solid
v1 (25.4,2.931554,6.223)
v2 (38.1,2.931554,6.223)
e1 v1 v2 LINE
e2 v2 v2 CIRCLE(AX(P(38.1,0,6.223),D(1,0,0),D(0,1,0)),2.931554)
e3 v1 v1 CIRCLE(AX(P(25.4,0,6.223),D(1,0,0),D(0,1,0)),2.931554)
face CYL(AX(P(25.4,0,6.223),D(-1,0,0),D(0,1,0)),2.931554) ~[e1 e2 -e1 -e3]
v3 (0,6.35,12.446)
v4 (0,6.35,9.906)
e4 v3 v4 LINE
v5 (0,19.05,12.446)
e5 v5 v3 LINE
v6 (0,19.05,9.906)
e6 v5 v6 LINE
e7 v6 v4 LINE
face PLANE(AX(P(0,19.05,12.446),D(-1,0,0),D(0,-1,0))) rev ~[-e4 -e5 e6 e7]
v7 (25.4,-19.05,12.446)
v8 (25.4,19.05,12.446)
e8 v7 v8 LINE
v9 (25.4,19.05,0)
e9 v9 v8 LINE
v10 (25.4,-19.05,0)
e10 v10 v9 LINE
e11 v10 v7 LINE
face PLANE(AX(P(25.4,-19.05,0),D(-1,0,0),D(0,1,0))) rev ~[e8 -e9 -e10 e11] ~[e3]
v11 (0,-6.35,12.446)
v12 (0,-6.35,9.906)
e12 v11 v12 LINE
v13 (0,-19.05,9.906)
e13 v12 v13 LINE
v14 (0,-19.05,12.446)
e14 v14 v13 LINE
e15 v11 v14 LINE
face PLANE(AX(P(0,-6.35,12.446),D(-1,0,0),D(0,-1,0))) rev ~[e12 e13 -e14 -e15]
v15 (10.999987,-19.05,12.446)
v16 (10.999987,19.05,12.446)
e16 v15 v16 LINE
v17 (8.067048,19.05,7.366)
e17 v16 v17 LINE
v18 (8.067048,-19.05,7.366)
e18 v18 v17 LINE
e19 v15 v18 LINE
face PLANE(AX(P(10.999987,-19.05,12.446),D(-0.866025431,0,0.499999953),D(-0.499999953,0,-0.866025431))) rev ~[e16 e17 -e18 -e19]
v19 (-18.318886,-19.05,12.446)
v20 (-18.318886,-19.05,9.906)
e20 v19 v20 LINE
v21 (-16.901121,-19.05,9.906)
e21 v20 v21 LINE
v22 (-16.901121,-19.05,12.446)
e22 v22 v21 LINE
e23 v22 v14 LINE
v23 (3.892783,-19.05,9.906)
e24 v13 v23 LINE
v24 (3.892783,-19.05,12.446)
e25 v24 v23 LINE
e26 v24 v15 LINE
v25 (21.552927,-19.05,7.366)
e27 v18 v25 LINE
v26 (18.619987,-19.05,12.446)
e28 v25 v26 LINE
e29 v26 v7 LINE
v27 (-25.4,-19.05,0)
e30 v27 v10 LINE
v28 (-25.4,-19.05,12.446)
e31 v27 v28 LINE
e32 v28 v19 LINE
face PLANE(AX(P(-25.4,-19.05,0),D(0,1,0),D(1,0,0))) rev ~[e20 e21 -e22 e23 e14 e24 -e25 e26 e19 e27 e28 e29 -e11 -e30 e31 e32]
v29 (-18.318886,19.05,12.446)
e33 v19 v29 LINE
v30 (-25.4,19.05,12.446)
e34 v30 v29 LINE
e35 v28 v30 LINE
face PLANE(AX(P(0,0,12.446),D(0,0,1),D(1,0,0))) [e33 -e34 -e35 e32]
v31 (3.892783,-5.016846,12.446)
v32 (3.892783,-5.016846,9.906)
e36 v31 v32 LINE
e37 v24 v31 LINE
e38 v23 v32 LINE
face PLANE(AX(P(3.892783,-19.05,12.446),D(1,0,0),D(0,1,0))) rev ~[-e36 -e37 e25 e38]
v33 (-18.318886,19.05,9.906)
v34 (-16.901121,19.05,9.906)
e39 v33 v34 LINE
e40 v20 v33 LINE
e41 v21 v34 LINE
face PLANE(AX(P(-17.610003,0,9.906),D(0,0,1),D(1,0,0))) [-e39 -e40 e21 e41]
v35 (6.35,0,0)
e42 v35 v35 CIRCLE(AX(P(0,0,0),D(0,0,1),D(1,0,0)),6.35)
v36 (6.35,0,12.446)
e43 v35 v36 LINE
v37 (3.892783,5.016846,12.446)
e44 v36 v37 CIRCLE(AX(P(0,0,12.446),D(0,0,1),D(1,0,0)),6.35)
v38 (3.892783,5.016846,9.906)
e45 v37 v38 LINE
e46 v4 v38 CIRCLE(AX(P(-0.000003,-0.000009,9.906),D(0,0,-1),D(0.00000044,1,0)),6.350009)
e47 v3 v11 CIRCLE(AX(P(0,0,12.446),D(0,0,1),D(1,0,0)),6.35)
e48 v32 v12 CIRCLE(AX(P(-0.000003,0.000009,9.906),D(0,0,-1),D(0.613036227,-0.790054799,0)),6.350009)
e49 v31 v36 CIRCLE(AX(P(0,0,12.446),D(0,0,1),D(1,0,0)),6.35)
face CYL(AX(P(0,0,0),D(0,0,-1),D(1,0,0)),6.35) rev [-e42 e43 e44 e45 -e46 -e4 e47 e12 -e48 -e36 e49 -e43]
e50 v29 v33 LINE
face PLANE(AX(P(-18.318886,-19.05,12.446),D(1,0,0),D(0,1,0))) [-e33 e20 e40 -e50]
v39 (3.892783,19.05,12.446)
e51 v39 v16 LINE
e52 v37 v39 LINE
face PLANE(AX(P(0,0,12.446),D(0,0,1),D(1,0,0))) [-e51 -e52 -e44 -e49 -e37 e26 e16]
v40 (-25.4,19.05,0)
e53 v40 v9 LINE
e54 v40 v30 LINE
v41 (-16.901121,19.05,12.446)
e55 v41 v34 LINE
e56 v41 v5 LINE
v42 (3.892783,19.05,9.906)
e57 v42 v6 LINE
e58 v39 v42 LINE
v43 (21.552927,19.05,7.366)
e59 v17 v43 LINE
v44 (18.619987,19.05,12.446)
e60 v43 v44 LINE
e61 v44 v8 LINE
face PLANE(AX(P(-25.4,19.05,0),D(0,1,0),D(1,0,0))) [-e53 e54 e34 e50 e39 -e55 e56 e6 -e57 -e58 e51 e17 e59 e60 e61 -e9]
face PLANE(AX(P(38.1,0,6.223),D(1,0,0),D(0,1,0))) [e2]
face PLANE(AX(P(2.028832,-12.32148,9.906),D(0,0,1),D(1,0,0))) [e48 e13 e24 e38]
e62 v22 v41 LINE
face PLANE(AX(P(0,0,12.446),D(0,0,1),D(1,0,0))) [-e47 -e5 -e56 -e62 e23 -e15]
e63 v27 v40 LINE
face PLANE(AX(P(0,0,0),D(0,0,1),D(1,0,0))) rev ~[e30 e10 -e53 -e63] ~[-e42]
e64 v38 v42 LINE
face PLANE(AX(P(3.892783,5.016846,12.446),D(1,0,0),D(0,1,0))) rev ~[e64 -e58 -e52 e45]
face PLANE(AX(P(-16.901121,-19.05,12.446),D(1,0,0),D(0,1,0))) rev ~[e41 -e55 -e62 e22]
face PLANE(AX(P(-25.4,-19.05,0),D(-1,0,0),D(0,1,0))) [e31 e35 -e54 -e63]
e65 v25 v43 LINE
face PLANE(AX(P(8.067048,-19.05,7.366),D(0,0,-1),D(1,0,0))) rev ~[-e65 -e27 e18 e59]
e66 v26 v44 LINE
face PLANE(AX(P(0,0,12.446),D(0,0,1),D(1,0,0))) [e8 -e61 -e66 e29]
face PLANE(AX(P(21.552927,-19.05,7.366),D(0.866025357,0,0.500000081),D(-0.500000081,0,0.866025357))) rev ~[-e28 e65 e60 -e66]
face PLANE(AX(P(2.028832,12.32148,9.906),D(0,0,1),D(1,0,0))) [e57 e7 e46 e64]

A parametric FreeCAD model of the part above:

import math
import FreeCAD as App
import Part
import Sketcher

V = App.Vector
Q = App.Units.Quantity


def add_polygon(sketch, points):
    """Adds a closed chain of lines whose ends are joined by coincident constraints."""
    first, n = sketch.GeometryCount, len(points)
    for a, b in zip(points, points[1:] + points[:1]):
        sketch.addGeometry(Part.LineSegment(App.Vector(*a, 0), App.Vector(*b, 0)), False)
    for i in range(n):
        sketch.addConstraint(Sketcher.Constraint("Coincident", first + i, 2, first + (i + 1) % n, 1))

doc = App.newDocument("Part")
body = doc.addObject("PartDesign::Body", "Body")

sketch1 = doc.addObject("Sketcher::SketchObject", "Sketch")
body.addObject(sketch1)
sketch1.AttachmentSupport = (doc.XY_Plane, [""])
sketch1.MapMode = "FlatFace"
add_polygon(sketch1, [(-25.4, 19.05), (-25.4, -19.05), (25.4, -19.05), (25.4, 19.05)])
sketch1.addGeometry(Part.Circle(V(0, 0, 0), V(0, 0, 1), 6.35), False)
sketch1.addConstraint([
    Sketcher.Constraint("Vertical", 0),
    Sketcher.Constraint("Horizontal", 1),
    Sketcher.Constraint("Vertical", 2),
    Sketcher.Constraint("Horizontal", 3),
    Sketcher.Constraint("Coincident", 4, 3, -1, 1),
    Sketcher.Constraint("Symmetric", 0, 2, 2, 2, -1, 1),
    Sketcher.Constraint("Diameter", 4, Q("0.5 in")),
    Sketcher.Constraint("DistanceX", 1, 1, 1, 2, Q("2 in")),
    Sketcher.Constraint("DistanceY", 0, 2, 0, 1, Q("1.5 in")),
])
pad1 = doc.addObject("PartDesign::Pad", "Pad")
body.addObject(pad1)
pad1.Profile = sketch1
pad1.Length = Q("0.49 in")

sketch2 = doc.addObject("Sketcher::SketchObject", "Sketch001")
body.addObject(sketch2)
sketch2.AttachmentSupport = (doc.XY_Plane, [""])
sketch2.MapMode = "FlatFace"
sketch2.AttachmentOffset = App.Placement(V(0, 0, 0.49 * 25.4), App.Rotation())
add_polygon(sketch2, [(-18.318886, 19.05), (-18.318886, -19.05), (-16.901121, -19.05), (-16.901121, 19.05)])
sketch2.addGeometry(Part.LineSegment(V(3.892783, 19.05, 0), V(0, 19.05, 0)), False)
sketch2.addGeometry(Part.LineSegment(V(0, 19.05, 0), V(0, 6.35, 0)), False)
sketch2.addGeometry(Part.ArcOfCircle(Part.Circle(V(-0.000003, -0.000009, 0), V(0, 0, 1), 6.350009), math.radians(52.190633), math.radians(89.999975)), False)
sketch2.addGeometry(Part.LineSegment(V(3.892783, 5.016846, 0), V(3.892783, 19.05, 0)), False)
sketch2.addGeometry(Part.LineSegment(V(0, -6.35, 0), V(0, -19.05, 0)), False)
sketch2.addGeometry(Part.LineSegment(V(0, -19.05, 0), V(3.892783, -19.05, 0)), False)
sketch2.addGeometry(Part.LineSegment(V(3.892783, -19.05, 0), V(3.892783, -5.016846, 0)), False)
sketch2.addGeometry(Part.ArcOfCircle(Part.Circle(V(-0.000003, 0.000009, 0), V(0, 0, 1), 6.350009), math.radians(-89.999975), math.radians(-52.190633)), False)
sketch2.addConstraint([
    Sketcher.Constraint("Coincident", 4, 2, 5, 1),
    Sketcher.Constraint("Coincident", 5, 2, 6, 2),
    Sketcher.Constraint("Coincident", 6, 1, 7, 1),
    Sketcher.Constraint("Coincident", 7, 2, 4, 1),
    Sketcher.Constraint("Coincident", 8, 2, 9, 1),
    Sketcher.Constraint("Coincident", 9, 2, 10, 1),
    Sketcher.Constraint("Coincident", 10, 2, 11, 2),
    Sketcher.Constraint("Coincident", 11, 1, 8, 1),
    Sketcher.Constraint("Vertical", 0),
    Sketcher.Constraint("Horizontal", 1),
    Sketcher.Constraint("Vertical", 2),
    Sketcher.Constraint("Horizontal", 3),
    Sketcher.Constraint("Horizontal", 4),
    Sketcher.Constraint("Vertical", 5),
    Sketcher.Constraint("Vertical", 7),
    Sketcher.Constraint("Vertical", 8),
    Sketcher.Constraint("Horizontal", 9),
    Sketcher.Constraint("Vertical", 10),
    Sketcher.Constraint("Coincident", 6, 3, -1, 1),
    Sketcher.Constraint("Coincident", 11, 3, -1, 1),
    Sketcher.Constraint("Equal", 6, 11),
    Sketcher.Constraint("Symmetric", 4, 2, 8, 2, -1, 1),
    Sketcher.Constraint("PointOnObject", 4, 2, -2),
    Sketcher.Constraint("Horizontal", 3, 2, 4, 2),
    Sketcher.Constraint("Horizontal", 1, 2, 8, 2),
    Sketcher.Constraint("Vertical", 7, 2, 9, 2),
    Sketcher.Constraint("DistanceY", 0, 2, 0, 1, Q("1.5 in")),
    Sketcher.Constraint("DistanceY", 5, 2, 5, 1, Q("0.5 in")),
    Sketcher.Constraint("DistanceX", 1, 1, 1, 2, 1.417765),
    Sketcher.Constraint("DistanceX", 4, 2, 4, 1, 3.892783),
    Sketcher.Constraint("DistanceX", 1, 2, -1, 1, 16.901121),
])
pocket1 = doc.addObject("PartDesign::Pocket", "Pocket")
body.addObject(pocket1)
pocket1.Profile = sketch2
pocket1.Length = Q("0.1 in")

sketch3 = doc.addObject("Sketcher::SketchObject", "Sketch002")
body.addObject(sketch3)
sketch3.AttachmentSupport = (doc.XZ_Plane, [""])
sketch3.MapMode = "FlatFace"
sketch3.AttachmentOffset = App.Placement(V(0, 0, 0.75 * 25.4), App.Rotation())
add_polygon(sketch3, [(10.999987, 12.446), (8.067048, 7.366), (21.552927, 7.366), (18.619987, 12.446)])
sketch3.addConstraint([
    Sketcher.Constraint("Horizontal", 1),
    Sketcher.Constraint("Horizontal", 3),
    Sketcher.Constraint("Equal", 0, 2),
    Sketcher.Constraint("DistanceX", 3, 2, 3, 1, Q("0.3 in")),
    Sketcher.Constraint("Angle", 0, Q("-119.999997 deg")),
    Sketcher.Constraint("DistanceY", 1, 2, 2, 2, Q("0.2 in")),
    Sketcher.Constraint("DistanceY", -1, 1, 0, 2, Q("0.29 in")),
    Sketcher.Constraint("DistanceX", -1, 1, 0, 2, 8.067048),
])
pocket2 = doc.addObject("PartDesign::Pocket", "Pocket001")
body.addObject(pocket2)
pocket2.Profile = sketch3
pocket2.Length = Q("1.5 in")

sketch4 = doc.addObject("Sketcher::SketchObject", "Sketch003")
body.addObject(sketch4)
sketch4.AttachmentSupport = (doc.YZ_Plane, [""])
sketch4.MapMode = "FlatFace"
sketch4.AttachmentOffset = App.Placement(V(0, 0, 1 * 25.4), App.Rotation())
sketch4.addGeometry(Part.Circle(V(0, 6.223, 0), V(0, 0, 1), 2.931554), False)
sketch4.addConstraint([
    Sketcher.Constraint("PointOnObject", 0, 3, -2),
    Sketcher.Constraint("Diameter", 0, 5.863108),
    Sketcher.Constraint("DistanceY", -1, 1, 0, 3, Q("0.245 in")),
])
pad2 = doc.addObject("PartDesign::Pad", "Pad001")
body.addObject(pad2)
pad2.Profile = sketch4
pad2.Length = Q("0.5 in")

doc.recompute()
